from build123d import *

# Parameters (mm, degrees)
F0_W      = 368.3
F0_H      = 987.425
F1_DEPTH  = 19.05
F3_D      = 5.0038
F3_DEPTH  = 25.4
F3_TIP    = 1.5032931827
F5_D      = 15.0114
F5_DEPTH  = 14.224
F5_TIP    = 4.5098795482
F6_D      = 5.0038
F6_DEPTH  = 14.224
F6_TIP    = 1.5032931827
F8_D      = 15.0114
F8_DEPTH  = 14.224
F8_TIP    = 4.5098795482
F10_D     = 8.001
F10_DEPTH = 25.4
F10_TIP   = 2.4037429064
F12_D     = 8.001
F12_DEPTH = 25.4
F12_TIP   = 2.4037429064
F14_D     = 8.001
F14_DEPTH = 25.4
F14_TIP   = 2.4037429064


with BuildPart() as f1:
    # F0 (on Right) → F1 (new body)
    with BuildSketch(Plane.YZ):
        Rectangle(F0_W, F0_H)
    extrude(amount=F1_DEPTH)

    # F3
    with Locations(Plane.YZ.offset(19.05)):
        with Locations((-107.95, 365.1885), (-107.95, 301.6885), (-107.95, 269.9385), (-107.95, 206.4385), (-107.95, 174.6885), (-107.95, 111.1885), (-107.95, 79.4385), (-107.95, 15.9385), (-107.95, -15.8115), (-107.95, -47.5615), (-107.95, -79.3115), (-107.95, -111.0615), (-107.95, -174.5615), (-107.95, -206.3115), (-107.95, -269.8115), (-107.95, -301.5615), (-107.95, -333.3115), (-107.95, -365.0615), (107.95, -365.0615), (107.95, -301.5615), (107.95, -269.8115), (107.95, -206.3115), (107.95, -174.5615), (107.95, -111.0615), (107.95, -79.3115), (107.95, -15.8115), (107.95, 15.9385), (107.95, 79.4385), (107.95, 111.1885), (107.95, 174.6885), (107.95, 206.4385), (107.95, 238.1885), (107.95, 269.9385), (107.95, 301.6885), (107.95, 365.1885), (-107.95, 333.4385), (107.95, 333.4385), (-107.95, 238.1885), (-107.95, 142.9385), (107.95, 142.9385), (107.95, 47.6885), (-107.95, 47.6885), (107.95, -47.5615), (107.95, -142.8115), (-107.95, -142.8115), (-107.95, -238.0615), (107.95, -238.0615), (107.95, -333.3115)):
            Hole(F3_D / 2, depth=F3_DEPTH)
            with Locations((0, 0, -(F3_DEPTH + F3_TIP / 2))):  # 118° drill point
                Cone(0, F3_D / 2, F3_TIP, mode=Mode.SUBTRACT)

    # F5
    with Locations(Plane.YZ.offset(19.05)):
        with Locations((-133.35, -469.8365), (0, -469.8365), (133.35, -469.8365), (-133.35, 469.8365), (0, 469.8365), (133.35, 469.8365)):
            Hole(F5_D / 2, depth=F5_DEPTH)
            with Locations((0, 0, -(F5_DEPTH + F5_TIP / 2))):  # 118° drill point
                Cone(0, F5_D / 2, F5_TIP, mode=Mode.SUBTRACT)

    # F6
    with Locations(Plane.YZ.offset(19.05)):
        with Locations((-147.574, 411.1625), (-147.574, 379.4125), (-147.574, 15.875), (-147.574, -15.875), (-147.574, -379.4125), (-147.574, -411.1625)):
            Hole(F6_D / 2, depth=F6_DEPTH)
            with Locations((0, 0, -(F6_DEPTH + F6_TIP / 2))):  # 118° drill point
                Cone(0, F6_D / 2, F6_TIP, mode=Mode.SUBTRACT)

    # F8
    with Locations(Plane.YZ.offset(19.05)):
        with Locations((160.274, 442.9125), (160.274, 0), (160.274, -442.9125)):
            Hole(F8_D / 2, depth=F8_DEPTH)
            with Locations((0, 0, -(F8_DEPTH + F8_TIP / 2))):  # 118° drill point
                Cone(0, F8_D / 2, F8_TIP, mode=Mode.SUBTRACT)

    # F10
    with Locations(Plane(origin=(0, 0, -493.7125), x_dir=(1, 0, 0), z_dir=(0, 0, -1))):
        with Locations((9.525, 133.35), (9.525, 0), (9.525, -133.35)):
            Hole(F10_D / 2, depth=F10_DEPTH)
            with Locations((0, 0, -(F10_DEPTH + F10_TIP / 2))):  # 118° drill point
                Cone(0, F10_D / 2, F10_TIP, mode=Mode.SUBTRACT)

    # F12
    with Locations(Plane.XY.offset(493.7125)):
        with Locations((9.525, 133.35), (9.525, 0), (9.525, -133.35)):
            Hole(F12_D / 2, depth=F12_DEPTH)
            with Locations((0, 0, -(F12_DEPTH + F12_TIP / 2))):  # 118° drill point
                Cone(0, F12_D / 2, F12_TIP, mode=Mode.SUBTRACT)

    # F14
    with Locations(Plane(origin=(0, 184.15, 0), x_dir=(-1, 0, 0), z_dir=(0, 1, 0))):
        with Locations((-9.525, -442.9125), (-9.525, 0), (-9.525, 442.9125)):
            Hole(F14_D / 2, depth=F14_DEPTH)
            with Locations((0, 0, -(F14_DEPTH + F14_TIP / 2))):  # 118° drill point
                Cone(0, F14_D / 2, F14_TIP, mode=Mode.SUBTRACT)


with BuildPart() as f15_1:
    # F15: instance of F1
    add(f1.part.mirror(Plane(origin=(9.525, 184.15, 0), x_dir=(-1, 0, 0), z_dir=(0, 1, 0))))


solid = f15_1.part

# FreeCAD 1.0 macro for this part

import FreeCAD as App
import Part
import Sketcher
from FreeCAD import Vector
Q = App.Units.Quantity


def add_polygon(sketch, points):
    """Adds a closed chain of lines whose ends are joined by coincident constraints."""
    first, n = sketch.GeometryCount, len(points)
    for a, b in zip(points, points[1:] + points[:1]):
        sketch.addGeometry(Part.LineSegment(App.Vector(*a, 0), App.Vector(*b, 0)), False)
    for i in range(n):
        sketch.addConstraint(Sketcher.Constraint("Coincident", first + i, 2, first + (i + 1) % n, 1))

doc = App.newDocument("Part")
params = doc.addObject("Spreadsheet::Sheet", "Params")
for row, (alias, value) in enumerate([
    ("sketch1_width", "14.5 in"),
    ("sketch1_height", "38.875 in"),
    ("pad1_length", "0.75 in"),
    ("sketch2_diameter", "0.197 in"),
    ("hole_diameter", "0.197 in"),
    ("hole_depth", "1 in"),
    ("sketch3_diameter", "0.591 in"),
    ("hole2_diameter", "0.591 in"),
    ("hole2_depth", "0.56 in"),
    ("sketch4_diameter", "0.197 in"),
    ("hole3_diameter", "0.197 in"),
    ("hole3_depth", "0.56 in"),
    ("sketch5_diameter", "0.591 in"),
    ("hole4_diameter", "0.591 in"),
    ("hole4_depth", "0.56 in"),
    ("sketch6_diameter", "0.315 in"),
    ("hole5_diameter", "0.315 in"),
    ("hole5_depth", "1 in"),
    ("sketch7_diameter", "0.315 in"),
    ("hole6_diameter", "0.315 in"),
    ("hole6_depth", "1 in"),
    ("sketch8_diameter", "0.315 in"),
    ("hole7_diameter", "0.315 in"),
    ("hole7_depth", "1 in"),
], start=1):
    params.set(f"A{row}", alias)
    params.set(f"B{row}", "=" + value)
    params.setAlias(f"B{row}", alias)

body = doc.addObject("PartDesign::Body", "Body")

# Sketch on YZ plane
sketch1 = body.newObject("Sketcher::SketchObject", "Sketch")
sketch1.AttachmentSupport = (doc.getObject("YZ_Plane"), [""])
sketch1.MapMode = "FlatFace"
add_polygon(sketch1, [(-184, 494), (-184, -494), (184, -494), (184, 494)])  # lines 0-3
sketch1.addConstraint([
    Sketcher.Constraint("Vertical", 0),
    Sketcher.Constraint("Horizontal", 1),
    Sketcher.Constraint("Vertical", 2),
    Sketcher.Constraint("Horizontal", 3),
    Sketcher.Constraint("Symmetric", 0, 2, 2, 2, -1, 1),
    Sketcher.Constraint("DistanceX", 1, 1, 1, 2, Q("14.5 in")),
    Sketcher.Constraint("DistanceY", 0, 2, 0, 1, Q("38.875 in")),
])
sketch1.setExpression("Constraints[9]", "Params.sketch1_width")
sketch1.setExpression("Constraints[10]", "Params.sketch1_height")
pad1 = body.newObject("PartDesign::Pad", "Pad")
pad1.Profile = sketch1
pad1.setExpression("Length", "Params.pad1_length")

# Sketch on YZ plane
sketch2 = body.newObject("Sketcher::SketchObject", "Sketch001")
sketch2.AttachmentSupport = (doc.getObject("YZ_Plane"), [""])
sketch2.MapMode = "FlatFace"
sketch2.AttachmentOffset = App.Placement(Vector(0, 0, 0.75 * 25.4), App.Rotation())
sketch2.addGeometry([
    Part.Circle(Vector(-108, 365.2, 0), Vector(0, 0, 1), 2.5),  # 0
    Part.Circle(Vector(-108, 301.7, 0), Vector(0, 0, 1), 2.5),  # 1
    Part.Circle(Vector(-108, 269.9, 0), Vector(0, 0, 1), 2.5),  # 2
    Part.Circle(Vector(-108, 206.4, 0), Vector(0, 0, 1), 2.5),  # 3
    Part.Circle(Vector(-108, 174.7, 0), Vector(0, 0, 1), 2.5),  # 4
    Part.Circle(Vector(-108, 111.2, 0), Vector(0, 0, 1), 2.5),  # 5
    Part.Circle(Vector(-108, 79.4, 0), Vector(0, 0, 1), 2.5),  # 6
    Part.Circle(Vector(-108, 15.9, 0), Vector(0, 0, 1), 2.5),  # 7
    Part.Circle(Vector(-108, -15.8, 0), Vector(0, 0, 1), 2.5),  # 8
    Part.Circle(Vector(-108, -47.6, 0), Vector(0, 0, 1), 2.5),  # 9
    Part.Circle(Vector(-108, -79.3, 0), Vector(0, 0, 1), 2.5),  # 10
    Part.Circle(Vector(-108, -111.1, 0), Vector(0, 0, 1), 2.5),  # 11
    Part.Circle(Vector(-108, -174.6, 0), Vector(0, 0, 1), 2.5),  # 12
    Part.Circle(Vector(-108, -206.3, 0), Vector(0, 0, 1), 2.5),  # 13
    Part.Circle(Vector(-108, -269.8, 0), Vector(0, 0, 1), 2.5),  # 14
    Part.Circle(Vector(-108, -301.6, 0), Vector(0, 0, 1), 2.5),  # 15
    Part.Circle(Vector(-108, -333.3, 0), Vector(0, 0, 1), 2.5),  # 16
    Part.Circle(Vector(-108, -365.1, 0), Vector(0, 0, 1), 2.5),  # 17
    Part.Circle(Vector(108, -365.1, 0), Vector(0, 0, 1), 2.5),  # 18
    Part.Circle(Vector(108, -301.6, 0), Vector(0, 0, 1), 2.5),  # 19
    Part.Circle(Vector(108, -269.8, 0), Vector(0, 0, 1), 2.5),  # 20
    Part.Circle(Vector(108, -206.3, 0), Vector(0, 0, 1), 2.5),  # 21
    Part.Circle(Vector(108, -174.6, 0), Vector(0, 0, 1), 2.5),  # 22
    Part.Circle(Vector(108, -111.1, 0), Vector(0, 0, 1), 2.5),  # 23
    Part.Circle(Vector(108, -79.3, 0), Vector(0, 0, 1), 2.5),  # 24
    Part.Circle(Vector(108, -15.8, 0), Vector(0, 0, 1), 2.5),  # 25
    Part.Circle(Vector(108, 15.9, 0), Vector(0, 0, 1), 2.5),  # 26
    Part.Circle(Vector(108, 79.4, 0), Vector(0, 0, 1), 2.5),  # 27
    Part.Circle(Vector(108, 111.2, 0), Vector(0, 0, 1), 2.5),  # 28
    Part.Circle(Vector(108, 174.7, 0), Vector(0, 0, 1), 2.5),  # 29
    Part.Circle(Vector(108, 206.4, 0), Vector(0, 0, 1), 2.5),  # 30
    Part.Circle(Vector(108, 238.2, 0), Vector(0, 0, 1), 2.5),  # 31
    Part.Circle(Vector(108, 269.9, 0), Vector(0, 0, 1), 2.5),  # 32
    Part.Circle(Vector(108, 301.7, 0), Vector(0, 0, 1), 2.5),  # 33
    Part.Circle(Vector(108, 365.2, 0), Vector(0, 0, 1), 2.5),  # 34
    Part.Circle(Vector(-108, 333.4, 0), Vector(0, 0, 1), 2.5),  # 35
    Part.Circle(Vector(108, 333.4, 0), Vector(0, 0, 1), 2.5),  # 36
    Part.Circle(Vector(-108, 238.2, 0), Vector(0, 0, 1), 2.5),  # 37
    Part.Circle(Vector(-108, 142.9, 0), Vector(0, 0, 1), 2.5),  # 38
    Part.Circle(Vector(108, 142.9, 0), Vector(0, 0, 1), 2.5),  # 39
    Part.Circle(Vector(108, 47.7, 0), Vector(0, 0, 1), 2.5),  # 40
    Part.Circle(Vector(-108, 47.7, 0), Vector(0, 0, 1), 2.5),  # 41
    Part.Circle(Vector(108, -47.6, 0), Vector(0, 0, 1), 2.5),  # 42
    Part.Circle(Vector(108, -142.8, 0), Vector(0, 0, 1), 2.5),  # 43
    Part.Circle(Vector(-108, -142.8, 0), Vector(0, 0, 1), 2.5),  # 44
    Part.Circle(Vector(-108, -238.1, 0), Vector(0, 0, 1), 2.5),  # 45
    Part.Circle(Vector(108, -238.1, 0), Vector(0, 0, 1), 2.5),  # 46
    Part.Circle(Vector(108, -333.3, 0), Vector(0, 0, 1), 2.5),  # 47
], False)
sketch2.addConstraint([
    Sketcher.Constraint("Equal", 0, 1),
    Sketcher.Constraint("Equal", 1, 2),
    Sketcher.Constraint("Equal", 2, 3),
    Sketcher.Constraint("Equal", 3, 4),
    Sketcher.Constraint("Equal", 4, 5),
    Sketcher.Constraint("Equal", 5, 6),
    Sketcher.Constraint("Equal", 6, 7),
    Sketcher.Constraint("Equal", 7, 8),
    Sketcher.Constraint("Equal", 8, 9),
    Sketcher.Constraint("Equal", 9, 10),
    Sketcher.Constraint("Equal", 10, 11),
    Sketcher.Constraint("Equal", 11, 12),
    Sketcher.Constraint("Equal", 12, 13),
    Sketcher.Constraint("Equal", 13, 14),
    Sketcher.Constraint("Equal", 14, 15),
    Sketcher.Constraint("Equal", 15, 16),
    Sketcher.Constraint("Equal", 16, 17),
    Sketcher.Constraint("Equal", 17, 18),
    Sketcher.Constraint("Equal", 18, 19),
    Sketcher.Constraint("Equal", 19, 20),
    Sketcher.Constraint("Equal", 20, 21),
    Sketcher.Constraint("Equal", 21, 22),
    Sketcher.Constraint("Equal", 22, 23),
    Sketcher.Constraint("Equal", 23, 24),
    Sketcher.Constraint("Equal", 24, 25),
    Sketcher.Constraint("Equal", 25, 26),
    Sketcher.Constraint("Equal", 26, 27),
    Sketcher.Constraint("Equal", 27, 28),
    Sketcher.Constraint("Equal", 28, 29),
    Sketcher.Constraint("Equal", 29, 30),
    Sketcher.Constraint("Equal", 30, 31),
    Sketcher.Constraint("Equal", 31, 32),
    Sketcher.Constraint("Equal", 32, 33),
    Sketcher.Constraint("Equal", 33, 34),
    Sketcher.Constraint("Equal", 34, 35),
    Sketcher.Constraint("Equal", 35, 36),
    Sketcher.Constraint("Equal", 36, 37),
    Sketcher.Constraint("Equal", 37, 38),
    Sketcher.Constraint("Equal", 38, 39),
    Sketcher.Constraint("Equal", 39, 40),
    Sketcher.Constraint("Equal", 40, 41),
    Sketcher.Constraint("Equal", 41, 42),
    Sketcher.Constraint("Equal", 42, 43),
    Sketcher.Constraint("Equal", 43, 44),
    Sketcher.Constraint("Equal", 44, 45),
    Sketcher.Constraint("Equal", 45, 46),
    Sketcher.Constraint("Equal", 46, 47),
    Sketcher.Constraint("Symmetric", 17, 3, 18, 3, -2),
    Sketcher.Constraint("Symmetric", 15, 3, 19, 3, -2),
    Sketcher.Constraint("Symmetric", 14, 3, 20, 3, -2),
    Sketcher.Constraint("Symmetric", 13, 3, 21, 3, -2),
    Sketcher.Constraint("Symmetric", 12, 3, 22, 3, -2),
    Sketcher.Constraint("Symmetric", 11, 3, 23, 3, -2),
    Sketcher.Constraint("Symmetric", 10, 3, 24, 3, -2),
    Sketcher.Constraint("Symmetric", 8, 3, 25, 3, -2),
    Sketcher.Constraint("Symmetric", 7, 3, 26, 3, -2),
    Sketcher.Constraint("Symmetric", 6, 3, 27, 3, -2),
    Sketcher.Constraint("Symmetric", 5, 3, 28, 3, -2),
    Sketcher.Constraint("Symmetric", 4, 3, 29, 3, -2),
    Sketcher.Constraint("Symmetric", 3, 3, 30, 3, -2),
    Sketcher.Constraint("Symmetric", 2, 3, 32, 3, -2),
    Sketcher.Constraint("Symmetric", 1, 3, 33, 3, -2),
    Sketcher.Constraint("Symmetric", 0, 3, 34, 3, -2),
    Sketcher.Constraint("Symmetric", 35, 3, 36, 3, -2),
    Sketcher.Constraint("Symmetric", 31, 3, 37, 3, -2),
    Sketcher.Constraint("Symmetric", 38, 3, 39, 3, -2),
    Sketcher.Constraint("Symmetric", 40, 3, 41, 3, -2),
    Sketcher.Constraint("Symmetric", 9, 3, 42, 3, -2),
    Sketcher.Constraint("Symmetric", 43, 3, 44, 3, -2),
    Sketcher.Constraint("Symmetric", 45, 3, 46, 3, -2),
    Sketcher.Constraint("Symmetric", 16, 3, 47, 3, -2),
    Sketcher.Constraint("Vertical", 0, 3, 1, 3),
    Sketcher.Constraint("Vertical", 1, 3, 2, 3),
    Sketcher.Constraint("Vertical", 2, 3, 3, 3),
    Sketcher.Constraint("Vertical", 3, 3, 4, 3),
    Sketcher.Constraint("Vertical", 4, 3, 5, 3),
    Sketcher.Constraint("Vertical", 5, 3, 6, 3),
    Sketcher.Constraint("Vertical", 6, 3, 7, 3),
    Sketcher.Constraint("Vertical", 7, 3, 8, 3),
    Sketcher.Constraint("Vertical", 8, 3, 9, 3),
    Sketcher.Constraint("Vertical", 9, 3, 10, 3),
    Sketcher.Constraint("Vertical", 10, 3, 11, 3),
    Sketcher.Constraint("Vertical", 11, 3, 12, 3),
    Sketcher.Constraint("Vertical", 12, 3, 13, 3),
    Sketcher.Constraint("Vertical", 13, 3, 14, 3),
    Sketcher.Constraint("Vertical", 14, 3, 15, 3),
    Sketcher.Constraint("Vertical", 15, 3, 16, 3),
    Sketcher.Constraint("Vertical", 16, 3, 17, 3),
    Sketcher.Constraint("Vertical", 30, 3, 31, 3),
    Sketcher.Constraint("Vertical", 17, 3, 35, 3),
    Sketcher.Constraint("Vertical", 37, 3, 38, 3),
    Sketcher.Constraint("Vertical", 39, 3, 40, 3),
    Sketcher.Constraint("Vertical", 42, 3, 43, 3),
    Sketcher.Constraint("Vertical", 44, 3, 45, 3),
    Sketcher.Constraint("Diameter", 0, Q("0.197 in")),
    Sketcher.Constraint("DistanceY", 4, 3, 1, 3, Q("5 in")),
    Sketcher.Constraint("DistanceY", 5, 3, 0, 3, Q("10 in")),
    Sketcher.Constraint("DistanceY", 6, 3, 3, 3, Q("5 in")),
    Sketcher.Constraint("DistanceY", 7, 3, 2, 3, Q("10 in")),
    Sketcher.Constraint("DistanceY", 8, 3, 5, 3, Q("5 in")),
    Sketcher.Constraint("DistanceY", 9, 3, 6, 3, Q("5 in")),
    Sketcher.Constraint("DistanceY", 11, 3, 7, 3, Q("5 in")),
    Sketcher.Constraint("DistanceY", 12, 3, 9, 3, Q("5 in")),
    Sketcher.Constraint("DistanceY", 13, 3, 10, 3, Q("5 in")),
    Sketcher.Constraint("DistanceY", 15, 3, 12, 3, Q("5 in")),
    Sketcher.Constraint("DistanceY", 16, 3, 13, 3, Q("5 in")),
    Sketcher.Constraint("DistanceY", 28, 3, 31, 3, Q("5 in")),
    Sketcher.Constraint("DistanceY", 3, 3, 35, 3, Q("5 in")),
    Sketcher.Constraint("DistanceY", 1, 3, 0, 3, Q("2.5 in")),
    Sketcher.Constraint("DistanceY", 3, 3, 2, 3, Q("2.5 in")),
    Sketcher.Constraint("DistanceY", 10, 3, 8, 3, Q("2.5 in")),
    Sketcher.Constraint("DistanceY", 14, 3, 13, 3, Q("2.5 in")),
    Sketcher.Constraint("DistanceY", 17, 3, 15, 3, Q("2.5 in")),
    Sketcher.Constraint("DistanceX", 17, 3, 18, 3, Q("8.5 in")),
    Sketcher.Constraint("DistanceY", 38, 3, 3, 3, Q("2.5 in")),
    Sketcher.Constraint("DistanceY", 25, 3, 40, 3, Q("2.5 in")),
    Sketcher.Constraint("DistanceY", 21, 3, 43, 3, Q("2.5 in")),
    Sketcher.Constraint("DistanceY", 45, 3, 12, 3, Q("2.5 in")),
    Sketcher.Constraint("DistanceY", 2, 3, 1, 3, Q("1.25 in")),
    Sketcher.Constraint("DistanceY", -1, 1, 0, 3, Q("14.3775 in")),
])
sketch2.setExpression("Constraints[94]", "Params.sketch2_diameter")
doc.recompute()
hole = body.newObject("PartDesign::Hole", "Hole")
hole.Profile = sketch2
hole.ThreadType = "None"
hole.setExpression("Diameter", "Params.hole_diameter")
hole.DepthType = "Dimension"
hole.setExpression("Depth", "Params.hole_depth")
hole.DrillPoint = "Angled"
hole.DrillPointAngle = 118

# Sketch on YZ plane
sketch3 = body.newObject("Sketcher::SketchObject", "Sketch002")
sketch3.AttachmentSupport = (doc.getObject("YZ_Plane"), [""])
sketch3.MapMode = "FlatFace"
sketch3.AttachmentOffset = App.Placement(Vector(0, 0, 0.75 * 25.4), App.Rotation())
sketch3.addGeometry([
    Part.Circle(Vector(-133, -470, 0), Vector(0, 0, 1), 8),  # 0
    Part.Circle(Vector(0, -470, 0), Vector(0, 0, 1), 8),  # 1
    Part.Circle(Vector(133, -470, 0), Vector(0, 0, 1), 8),  # 2
    Part.Circle(Vector(-133, 470, 0), Vector(0, 0, 1), 8),  # 3
    Part.Circle(Vector(0, 470, 0), Vector(0, 0, 1), 8),  # 4
    Part.Circle(Vector(133, 470, 0), Vector(0, 0, 1), 8),  # 5
], False)
sketch3.addConstraint([
    Sketcher.Constraint("Equal", 0, 1),
    Sketcher.Constraint("Equal", 1, 2),
    Sketcher.Constraint("Equal", 2, 3),
    Sketcher.Constraint("Equal", 3, 4),
    Sketcher.Constraint("Equal", 4, 5),
    Sketcher.Constraint("Symmetric", 2, 3, 3, 3, -1, 1),
    Sketcher.Constraint("Symmetric", 1, 3, 4, 3, -1, 1),
    Sketcher.Constraint("Symmetric", 0, 3, 5, 3, -1, 1),
    Sketcher.Constraint("Symmetric", 0, 3, 2, 3, -2),
    Sketcher.Constraint("PointOnObject", 1, 3, -2),
    Sketcher.Constraint("Horizontal", 0, 3, 1, 3),
    Sketcher.Constraint("Diameter", 0, Q("0.591 in")),
    Sketcher.Constraint("DistanceX", 0, 3, 2, 3, Q("10.5 in")),
    Sketcher.Constraint("DistanceY", 0, 3, 3, 3, Q("36.995 in")),
])
sketch3.setExpression("Constraints[11]", "Params.sketch3_diameter")
doc.recompute()
hole2 = body.newObject("PartDesign::Hole", "Hole001")
hole2.Profile = sketch3
hole2.ThreadType = "None"
hole2.setExpression("Diameter", "Params.hole2_diameter")
hole2.DepthType = "Dimension"
hole2.setExpression("Depth", "Params.hole2_depth")
hole2.DrillPoint = "Angled"
hole2.DrillPointAngle = 118

# Sketch on YZ plane
sketch4 = body.newObject("Sketcher::SketchObject", "Sketch003")
sketch4.AttachmentSupport = (doc.getObject("YZ_Plane"), [""])
sketch4.MapMode = "FlatFace"
sketch4.AttachmentOffset = App.Placement(Vector(0, 0, 0.75 * 25.4), App.Rotation())
sketch4.addGeometry([
    Part.Circle(Vector(-147.6, 411.2, 0), Vector(0, 0, 1), 2.5),  # 0
    Part.Circle(Vector(-147.6, 379.4, 0), Vector(0, 0, 1), 2.5),  # 1
    Part.Circle(Vector(-147.6, 15.9, 0), Vector(0, 0, 1), 2.5),  # 2
    Part.Circle(Vector(-147.6, -15.9, 0), Vector(0, 0, 1), 2.5),  # 3
    Part.Circle(Vector(-147.6, -379.4, 0), Vector(0, 0, 1), 2.5),  # 4
    Part.Circle(Vector(-147.6, -411.2, 0), Vector(0, 0, 1), 2.5),  # 5
], False)
sketch4.addConstraint([
    Sketcher.Constraint("Equal", 0, 1),
    Sketcher.Constraint("Equal", 1, 2),
    Sketcher.Constraint("Equal", 2, 3),
    Sketcher.Constraint("Equal", 3, 4),
    Sketcher.Constraint("Equal", 4, 5),
    Sketcher.Constraint("Symmetric", 2, 3, 3, 3, -1),
    Sketcher.Constraint("Symmetric", 1, 3, 4, 3, -1),
    Sketcher.Constraint("Symmetric", 0, 3, 5, 3, -1),
    Sketcher.Constraint("Vertical", 0, 3, 1, 3),
    Sketcher.Constraint("Vertical", 1, 3, 2, 3),
    Sketcher.Constraint("Diameter", 0, Q("0.197 in")),
    Sketcher.Constraint("DistanceX", 0, 3, -1, 1, Q("5.81 in")),
    Sketcher.Constraint("DistanceY", 1, 3, 0, 3, Q("1.25 in")),
    Sketcher.Constraint("DistanceY", 3, 3, 2, 3, Q("1.25 in")),
    Sketcher.Constraint("DistanceY", -1, 1, 0, 3, Q("16.1875 in")),
])
sketch4.setExpression("Constraints[10]", "Params.sketch4_diameter")
doc.recompute()
hole3 = body.newObject("PartDesign::Hole", "Hole002")
hole3.Profile = sketch4
hole3.ThreadType = "None"
hole3.setExpression("Diameter", "Params.hole3_diameter")
hole3.DepthType = "Dimension"
hole3.setExpression("Depth", "Params.hole3_depth")
hole3.DrillPoint = "Angled"
hole3.DrillPointAngle = 118

# Sketch on YZ plane
sketch5 = body.newObject("Sketcher::SketchObject", "Sketch004")
sketch5.AttachmentSupport = (doc.getObject("YZ_Plane"), [""])
sketch5.MapMode = "FlatFace"
sketch5.AttachmentOffset = App.Placement(Vector(0, 0, 0.75 * 25.4), App.Rotation())
sketch5.addGeometry([
    Part.Circle(Vector(160, 443, 0), Vector(0, 0, 1), 8),
    Part.Circle(Vector(160, 0, 0), Vector(0, 0, 1), 8),
    Part.Circle(Vector(160, -443, 0), Vector(0, 0, 1), 8),
], False)
sketch5.addConstraint([
    Sketcher.Constraint("Equal", 0, 1),
    Sketcher.Constraint("Equal", 1, 2),
    Sketcher.Constraint("Symmetric", 0, 3, 2, 3, -1),
    Sketcher.Constraint("PointOnObject", 1, 3, -1),
    Sketcher.Constraint("Vertical", 0, 3, 1, 3),
    Sketcher.Constraint("Diameter", 0, Q("0.591 in")),
    Sketcher.Constraint("DistanceX", -1, 1, 0, 3, Q("6.31 in")),
    Sketcher.Constraint("DistanceY", -1, 1, 0, 3, Q("17.4375 in")),
])
sketch5.setExpression("Constraints[5]", "Params.sketch5_diameter")
doc.recompute()
hole4 = body.newObject("PartDesign::Hole", "Hole003")
hole4.Profile = sketch5
hole4.ThreadType = "None"
hole4.setExpression("Diameter", "Params.hole4_diameter")
hole4.DepthType = "Dimension"
hole4.setExpression("Depth", "Params.hole4_depth")
hole4.DrillPoint = "Angled"
hole4.DrillPointAngle = 118

# Sketch on XY plane
sketch6 = body.newObject("Sketcher::SketchObject", "Sketch005")
sketch6.AttachmentSupport = (doc.getObject("XY_Plane"), [""])
sketch6.MapMode = "FlatFace"
sketch6.AttachmentOffset = App.Placement(Vector(0, 0, -19.4375 * 25.4), App.Rotation())
sketch6.addGeometry([
    Part.Circle(Vector(9.5, -133.3, 0), Vector(0, 0, 1), 4),
    Part.Circle(Vector(9.5, 0, 0), Vector(0, 0, 1), 4),
    Part.Circle(Vector(9.5, 133.3, 0), Vector(0, 0, 1), 4),
], False)
sketch6.addConstraint([
    Sketcher.Constraint("Equal", 0, 1),
    Sketcher.Constraint("Equal", 1, 2),
    Sketcher.Constraint("Symmetric", 0, 3, 2, 3, -1),
    Sketcher.Constraint("PointOnObject", 1, 3, -1),
    Sketcher.Constraint("Vertical", 0, 3, 1, 3),
    Sketcher.Constraint("Diameter", 0, Q("0.315 in")),
    Sketcher.Constraint("DistanceY", 0, 3, 2, 3, Q("10.5 in")),
    Sketcher.Constraint("DistanceX", -1, 1, 0, 3, Q("0.375 in")),
])
sketch6.setExpression("Constraints[5]", "Params.sketch6_diameter")
doc.recompute()
hole5 = body.newObject("PartDesign::Hole", "Hole004")
hole5.Profile = sketch6
hole5.ThreadType = "None"
hole5.setExpression("Diameter", "Params.hole5_diameter")
hole5.DepthType = "Dimension"
hole5.setExpression("Depth", "Params.hole5_depth")
hole5.DrillPoint = "Angled"
hole5.DrillPointAngle = 118
hole5.Reversed = True

# Sketch on XY plane
sketch7 = body.newObject("Sketcher::SketchObject", "Sketch006")
sketch7.AttachmentSupport = (doc.getObject("XY_Plane"), [""])
sketch7.MapMode = "FlatFace"
sketch7.AttachmentOffset = App.Placement(Vector(0, 0, 19.4375 * 25.4), App.Rotation())
sketch7.addGeometry([
    Part.Circle(Vector(9.5, 133.3, 0), Vector(0, 0, 1), 4),
    Part.Circle(Vector(9.5, 0, 0), Vector(0, 0, 1), 4),
    Part.Circle(Vector(9.5, -133.3, 0), Vector(0, 0, 1), 4),
], False)
sketch7.addConstraint([
    Sketcher.Constraint("Equal", 0, 1),
    Sketcher.Constraint("Equal", 1, 2),
    Sketcher.Constraint("Symmetric", 0, 3, 2, 3, -1),
    Sketcher.Constraint("PointOnObject", 1, 3, -1),
    Sketcher.Constraint("Vertical", 0, 3, 1, 3),
    Sketcher.Constraint("Diameter", 0, Q("0.315 in")),
    Sketcher.Constraint("DistanceY", 2, 3, 0, 3, Q("10.5 in")),
    Sketcher.Constraint("DistanceX", -1, 1, 0, 3, Q("0.375 in")),
])
sketch7.setExpression("Constraints[5]", "Params.sketch7_diameter")
doc.recompute()
hole6 = body.newObject("PartDesign::Hole", "Hole005")
hole6.Profile = sketch7
hole6.ThreadType = "None"
hole6.setExpression("Diameter", "Params.hole6_diameter")
hole6.DepthType = "Dimension"
hole6.setExpression("Depth", "Params.hole6_depth")
hole6.DrillPoint = "Angled"
hole6.DrillPointAngle = 118

# Sketch on XZ plane
sketch8 = body.newObject("Sketcher::SketchObject", "Sketch007")
sketch8.AttachmentSupport = (doc.getObject("XZ_Plane"), [""])
sketch8.MapMode = "FlatFace"
sketch8.AttachmentOffset = App.Placement(Vector(0, 0, -7.25 * 25.4), App.Rotation())
sketch8.addGeometry([
    Part.Circle(Vector(9.5, -442.9, 0), Vector(0, 0, 1), 4),
    Part.Circle(Vector(9.5, 0, 0), Vector(0, 0, 1), 4),
    Part.Circle(Vector(9.5, 442.9, 0), Vector(0, 0, 1), 4),
], False)
sketch8.addConstraint([
    Sketcher.Constraint("Equal", 0, 1),
    Sketcher.Constraint("Equal", 1, 2),
    Sketcher.Constraint("Symmetric", 0, 3, 2, 3, -1),
    Sketcher.Constraint("PointOnObject", 1, 3, -1),
    Sketcher.Constraint("Vertical", 0, 3, 1, 3),
    Sketcher.Constraint("Diameter", 0, Q("0.315 in")),
    Sketcher.Constraint("DistanceX", -1, 1, 0, 3, Q("0.375 in")),
    Sketcher.Constraint("DistanceY", 0, 3, -1, 1, Q("17.4375 in")),
])
sketch8.setExpression("Constraints[5]", "Params.sketch8_diameter")
doc.recompute()
hole7 = body.newObject("PartDesign::Hole", "Hole006")
hole7.Profile = sketch8
hole7.ThreadType = "None"
hole7.setExpression("Diameter", "Params.hole7_diameter")
hole7.DepthType = "Dimension"
hole7.setExpression("Depth", "Params.hole7_depth")
hole7.DrillPoint = "Angled"
hole7.DrillPointAngle = 118
hole7.Reversed = True
body2 = doc.addObject("PartDesign::Body", "Body001")
doc.recompute()

mirroring = doc.addObject("Part::Mirroring", "Mirroring")
mirroring.Source = body
mirroring.Base = Vector(9.525, 184.15, 0)
mirroring.Normal = Vector(0, 1, 0)
body2.BaseFeature = mirroring
doc.recompute()
body.Visibility = False
mirroring.Visibility = False

doc.recompute()
